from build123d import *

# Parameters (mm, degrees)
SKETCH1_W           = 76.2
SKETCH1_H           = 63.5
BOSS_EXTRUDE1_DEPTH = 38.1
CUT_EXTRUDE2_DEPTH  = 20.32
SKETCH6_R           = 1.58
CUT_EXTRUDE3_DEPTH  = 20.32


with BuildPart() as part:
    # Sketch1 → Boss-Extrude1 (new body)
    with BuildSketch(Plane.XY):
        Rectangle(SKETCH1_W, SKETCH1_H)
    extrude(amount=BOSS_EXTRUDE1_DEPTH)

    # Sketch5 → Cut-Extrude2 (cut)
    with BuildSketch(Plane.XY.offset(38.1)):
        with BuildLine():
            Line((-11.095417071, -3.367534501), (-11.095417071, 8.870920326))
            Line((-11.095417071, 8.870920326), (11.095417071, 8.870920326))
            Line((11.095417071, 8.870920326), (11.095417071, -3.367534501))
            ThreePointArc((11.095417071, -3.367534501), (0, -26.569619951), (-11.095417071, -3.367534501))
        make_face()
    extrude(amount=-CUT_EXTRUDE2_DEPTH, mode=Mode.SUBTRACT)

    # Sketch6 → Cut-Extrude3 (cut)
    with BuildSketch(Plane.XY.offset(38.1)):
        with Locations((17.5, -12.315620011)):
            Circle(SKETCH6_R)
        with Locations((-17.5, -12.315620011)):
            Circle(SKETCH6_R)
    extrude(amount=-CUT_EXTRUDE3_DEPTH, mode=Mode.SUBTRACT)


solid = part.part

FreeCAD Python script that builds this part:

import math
import FreeCAD as App
import Part
import Sketcher
Q = App.Units.Quantity

doc = App.newDocument("Part")
params = doc.addObject("Spreadsheet::Sheet", "Params")
for row, (alias, value) in enumerate([
    ("sketch1_width", "3 in"),
    ("sketch1_height", "2.5 in"),
    ("pad1_length", "1.5 in"),
    ("pocket1_length", "0.8 in"),
    ("pocket2_length", "0.8 in"),
], start=1):
    params.set(f"A{row}", alias)
    params.set(f"B{row}", "=" + value)
    params.setAlias(f"B{row}", alias)

body = doc.addObject("PartDesign::Body", "Body")

# Sketch on XY plane
sketch1 = body.newObject("Sketcher::SketchObject", "Sketch")
sketch1.AttachmentSupport = (doc.getObject("XY_Plane"), [""])
sketch1.MapMode = "FlatFace"
sketch1.addGeometry(Part.LineSegment(App.Vector(-38.1, 31.75, 0), App.Vector(-38.1, -31.75, 0)), False)
sketch1.addGeometry(Part.LineSegment(App.Vector(-38.1, -31.75, 0), App.Vector(38.1, -31.75, 0)), False)
sketch1.addGeometry(Part.LineSegment(App.Vector(38.1, -31.75, 0), App.Vector(38.1, 31.75, 0)), False)
sketch1.addGeometry(Part.LineSegment(App.Vector(38.1, 31.75, 0), App.Vector(-38.1, 31.75, 0)), False)
sketch1.addConstraint(Sketcher.Constraint("Coincident", 0, 2, 1, 1))
sketch1.addConstraint(Sketcher.Constraint("Coincident", 1, 2, 2, 1))
sketch1.addConstraint(Sketcher.Constraint("Coincident", 2, 2, 3, 1))
sketch1.addConstraint(Sketcher.Constraint("Coincident", 3, 2, 0, 1))
sketch1.addConstraint(Sketcher.Constraint("Vertical", 0))
sketch1.addConstraint(Sketcher.Constraint("Horizontal", 1))
sketch1.addConstraint(Sketcher.Constraint("Vertical", 2))
sketch1.addConstraint(Sketcher.Constraint("Horizontal", 3))
sketch1.addConstraint(Sketcher.Constraint("Symmetric", 0, 2, 2, 2, -1, 1))
sketch1.addConstraint(Sketcher.Constraint("DistanceX", 1, 1, 1, 2, Q("3 in")))
sketch1.addConstraint(Sketcher.Constraint("DistanceY", 0, 2, 0, 1, Q("2.5 in")))
sketch1.setExpression("Constraints[9]", "Params.sketch1_width")
sketch1.setExpression("Constraints[10]", "Params.sketch1_height")
pad1 = body.newObject("PartDesign::Pad", "Pad")
pad1.Profile = sketch1
pad1.setExpression("Length", "Params.pad1_length")

# Sketch on XY plane
sketch2 = body.newObject("Sketcher::SketchObject", "Sketch001")
sketch2.AttachmentSupport = (doc.getObject("XY_Plane"), [""])
sketch2.MapMode = "FlatFace"
sketch2.AttachmentOffset = App.Placement(App.Vector(0, 0, 1.5 * 25.4), App.Rotation())
sketch2.addGeometry(Part.LineSegment(App.Vector(-11.095417, 8.87092, 0), App.Vector(-11.095417, -3.367535, 0)), False)
sketch2.addGeometry(Part.ArcOfCircle(Part.Circle(App.Vector(0, -12.31562, 0), App.Vector(0, 0, 1), 14.254), math.radians(141.114976), math.radians(398.885024)), False)
sketch2.addGeometry(Part.LineSegment(App.Vector(11.095417, -3.367535, 0), App.Vector(11.095417, 8.87092, 0)), False)
sketch2.addGeometry(Part.LineSegment(App.Vector(11.095417, 8.87092, 0), App.Vector(-11.095417, 8.87092, 0)), False)
sketch2.addConstraint(Sketcher.Constraint("Coincident", 0, 2, 1, 1))
sketch2.addConstraint(Sketcher.Constraint("Coincident", 1, 2, 2, 1))
sketch2.addConstraint(Sketcher.Constraint("Coincident", 2, 2, 3, 1))
sketch2.addConstraint(Sketcher.Constraint("Coincident", 3, 2, 0, 1))
sketch2.addConstraint(Sketcher.Constraint("Vertical", 0))
sketch2.addConstraint(Sketcher.Constraint("Vertical", 2))
sketch2.addConstraint(Sketcher.Constraint("Horizontal", 3))
sketch2.addConstraint(Sketcher.Constraint("Symmetric", 0, 2, 1, 2, -2))
sketch2.addConstraint(Sketcher.Constraint("Radius", 1, Q("14.254 mm")))
sketch2.addConstraint(Sketcher.Constraint("DistanceX", 3, 2, 3, 1, Q("22.190834 mm")))
sketch2.addConstraint(Sketcher.Constraint("DistanceY", 0, 2, 0, 1, Q("12.238455 mm")))
sketch2.addConstraint(Sketcher.Constraint("DistanceY", 1, 3, -1, 1, Q("12.31562 mm")))
pocket1 = body.newObject("PartDesign::Pocket", "Pocket")
pocket1.Profile = sketch2
pocket1.setExpression("Length", "Params.pocket1_length")

# Sketch on XY plane
sketch3 = body.newObject("Sketcher::SketchObject", "Sketch002")
sketch3.AttachmentSupport = (doc.getObject("XY_Plane"), [""])
sketch3.MapMode = "FlatFace"
sketch3.AttachmentOffset = App.Placement(App.Vector(0, 0, 1.5 * 25.4), App.Rotation())
sketch3.addGeometry(Part.Circle(App.Vector(17.5, -12.31562, 0), App.Vector(0, 0, 1), 1.58), False)
sketch3.addGeometry(Part.Circle(App.Vector(-17.5, -12.31562, 0), App.Vector(0, 0, 1), 1.58), False)
sketch3.addConstraint(Sketcher.Constraint("Equal", 0, 1))
sketch3.addConstraint(Sketcher.Constraint("Symmetric", 0, 3, 1, 3, -2))
sketch3.addConstraint(Sketcher.Constraint("Diameter", 0, Q("3.16 mm")))
sketch3.addConstraint(Sketcher.Constraint("DistanceX", -1, 1, 0, 3, Q("17.5 mm")))
sketch3.addConstraint(Sketcher.Constraint("DistanceY", 0, 3, -1, 1, Q("12.31562 mm")))
pocket2 = body.newObject("PartDesign::Pocket", "Pocket001")
pocket2.Profile = sketch3
pocket2.setExpression("Length", "Params.pocket2_length")

doc.recompute()
